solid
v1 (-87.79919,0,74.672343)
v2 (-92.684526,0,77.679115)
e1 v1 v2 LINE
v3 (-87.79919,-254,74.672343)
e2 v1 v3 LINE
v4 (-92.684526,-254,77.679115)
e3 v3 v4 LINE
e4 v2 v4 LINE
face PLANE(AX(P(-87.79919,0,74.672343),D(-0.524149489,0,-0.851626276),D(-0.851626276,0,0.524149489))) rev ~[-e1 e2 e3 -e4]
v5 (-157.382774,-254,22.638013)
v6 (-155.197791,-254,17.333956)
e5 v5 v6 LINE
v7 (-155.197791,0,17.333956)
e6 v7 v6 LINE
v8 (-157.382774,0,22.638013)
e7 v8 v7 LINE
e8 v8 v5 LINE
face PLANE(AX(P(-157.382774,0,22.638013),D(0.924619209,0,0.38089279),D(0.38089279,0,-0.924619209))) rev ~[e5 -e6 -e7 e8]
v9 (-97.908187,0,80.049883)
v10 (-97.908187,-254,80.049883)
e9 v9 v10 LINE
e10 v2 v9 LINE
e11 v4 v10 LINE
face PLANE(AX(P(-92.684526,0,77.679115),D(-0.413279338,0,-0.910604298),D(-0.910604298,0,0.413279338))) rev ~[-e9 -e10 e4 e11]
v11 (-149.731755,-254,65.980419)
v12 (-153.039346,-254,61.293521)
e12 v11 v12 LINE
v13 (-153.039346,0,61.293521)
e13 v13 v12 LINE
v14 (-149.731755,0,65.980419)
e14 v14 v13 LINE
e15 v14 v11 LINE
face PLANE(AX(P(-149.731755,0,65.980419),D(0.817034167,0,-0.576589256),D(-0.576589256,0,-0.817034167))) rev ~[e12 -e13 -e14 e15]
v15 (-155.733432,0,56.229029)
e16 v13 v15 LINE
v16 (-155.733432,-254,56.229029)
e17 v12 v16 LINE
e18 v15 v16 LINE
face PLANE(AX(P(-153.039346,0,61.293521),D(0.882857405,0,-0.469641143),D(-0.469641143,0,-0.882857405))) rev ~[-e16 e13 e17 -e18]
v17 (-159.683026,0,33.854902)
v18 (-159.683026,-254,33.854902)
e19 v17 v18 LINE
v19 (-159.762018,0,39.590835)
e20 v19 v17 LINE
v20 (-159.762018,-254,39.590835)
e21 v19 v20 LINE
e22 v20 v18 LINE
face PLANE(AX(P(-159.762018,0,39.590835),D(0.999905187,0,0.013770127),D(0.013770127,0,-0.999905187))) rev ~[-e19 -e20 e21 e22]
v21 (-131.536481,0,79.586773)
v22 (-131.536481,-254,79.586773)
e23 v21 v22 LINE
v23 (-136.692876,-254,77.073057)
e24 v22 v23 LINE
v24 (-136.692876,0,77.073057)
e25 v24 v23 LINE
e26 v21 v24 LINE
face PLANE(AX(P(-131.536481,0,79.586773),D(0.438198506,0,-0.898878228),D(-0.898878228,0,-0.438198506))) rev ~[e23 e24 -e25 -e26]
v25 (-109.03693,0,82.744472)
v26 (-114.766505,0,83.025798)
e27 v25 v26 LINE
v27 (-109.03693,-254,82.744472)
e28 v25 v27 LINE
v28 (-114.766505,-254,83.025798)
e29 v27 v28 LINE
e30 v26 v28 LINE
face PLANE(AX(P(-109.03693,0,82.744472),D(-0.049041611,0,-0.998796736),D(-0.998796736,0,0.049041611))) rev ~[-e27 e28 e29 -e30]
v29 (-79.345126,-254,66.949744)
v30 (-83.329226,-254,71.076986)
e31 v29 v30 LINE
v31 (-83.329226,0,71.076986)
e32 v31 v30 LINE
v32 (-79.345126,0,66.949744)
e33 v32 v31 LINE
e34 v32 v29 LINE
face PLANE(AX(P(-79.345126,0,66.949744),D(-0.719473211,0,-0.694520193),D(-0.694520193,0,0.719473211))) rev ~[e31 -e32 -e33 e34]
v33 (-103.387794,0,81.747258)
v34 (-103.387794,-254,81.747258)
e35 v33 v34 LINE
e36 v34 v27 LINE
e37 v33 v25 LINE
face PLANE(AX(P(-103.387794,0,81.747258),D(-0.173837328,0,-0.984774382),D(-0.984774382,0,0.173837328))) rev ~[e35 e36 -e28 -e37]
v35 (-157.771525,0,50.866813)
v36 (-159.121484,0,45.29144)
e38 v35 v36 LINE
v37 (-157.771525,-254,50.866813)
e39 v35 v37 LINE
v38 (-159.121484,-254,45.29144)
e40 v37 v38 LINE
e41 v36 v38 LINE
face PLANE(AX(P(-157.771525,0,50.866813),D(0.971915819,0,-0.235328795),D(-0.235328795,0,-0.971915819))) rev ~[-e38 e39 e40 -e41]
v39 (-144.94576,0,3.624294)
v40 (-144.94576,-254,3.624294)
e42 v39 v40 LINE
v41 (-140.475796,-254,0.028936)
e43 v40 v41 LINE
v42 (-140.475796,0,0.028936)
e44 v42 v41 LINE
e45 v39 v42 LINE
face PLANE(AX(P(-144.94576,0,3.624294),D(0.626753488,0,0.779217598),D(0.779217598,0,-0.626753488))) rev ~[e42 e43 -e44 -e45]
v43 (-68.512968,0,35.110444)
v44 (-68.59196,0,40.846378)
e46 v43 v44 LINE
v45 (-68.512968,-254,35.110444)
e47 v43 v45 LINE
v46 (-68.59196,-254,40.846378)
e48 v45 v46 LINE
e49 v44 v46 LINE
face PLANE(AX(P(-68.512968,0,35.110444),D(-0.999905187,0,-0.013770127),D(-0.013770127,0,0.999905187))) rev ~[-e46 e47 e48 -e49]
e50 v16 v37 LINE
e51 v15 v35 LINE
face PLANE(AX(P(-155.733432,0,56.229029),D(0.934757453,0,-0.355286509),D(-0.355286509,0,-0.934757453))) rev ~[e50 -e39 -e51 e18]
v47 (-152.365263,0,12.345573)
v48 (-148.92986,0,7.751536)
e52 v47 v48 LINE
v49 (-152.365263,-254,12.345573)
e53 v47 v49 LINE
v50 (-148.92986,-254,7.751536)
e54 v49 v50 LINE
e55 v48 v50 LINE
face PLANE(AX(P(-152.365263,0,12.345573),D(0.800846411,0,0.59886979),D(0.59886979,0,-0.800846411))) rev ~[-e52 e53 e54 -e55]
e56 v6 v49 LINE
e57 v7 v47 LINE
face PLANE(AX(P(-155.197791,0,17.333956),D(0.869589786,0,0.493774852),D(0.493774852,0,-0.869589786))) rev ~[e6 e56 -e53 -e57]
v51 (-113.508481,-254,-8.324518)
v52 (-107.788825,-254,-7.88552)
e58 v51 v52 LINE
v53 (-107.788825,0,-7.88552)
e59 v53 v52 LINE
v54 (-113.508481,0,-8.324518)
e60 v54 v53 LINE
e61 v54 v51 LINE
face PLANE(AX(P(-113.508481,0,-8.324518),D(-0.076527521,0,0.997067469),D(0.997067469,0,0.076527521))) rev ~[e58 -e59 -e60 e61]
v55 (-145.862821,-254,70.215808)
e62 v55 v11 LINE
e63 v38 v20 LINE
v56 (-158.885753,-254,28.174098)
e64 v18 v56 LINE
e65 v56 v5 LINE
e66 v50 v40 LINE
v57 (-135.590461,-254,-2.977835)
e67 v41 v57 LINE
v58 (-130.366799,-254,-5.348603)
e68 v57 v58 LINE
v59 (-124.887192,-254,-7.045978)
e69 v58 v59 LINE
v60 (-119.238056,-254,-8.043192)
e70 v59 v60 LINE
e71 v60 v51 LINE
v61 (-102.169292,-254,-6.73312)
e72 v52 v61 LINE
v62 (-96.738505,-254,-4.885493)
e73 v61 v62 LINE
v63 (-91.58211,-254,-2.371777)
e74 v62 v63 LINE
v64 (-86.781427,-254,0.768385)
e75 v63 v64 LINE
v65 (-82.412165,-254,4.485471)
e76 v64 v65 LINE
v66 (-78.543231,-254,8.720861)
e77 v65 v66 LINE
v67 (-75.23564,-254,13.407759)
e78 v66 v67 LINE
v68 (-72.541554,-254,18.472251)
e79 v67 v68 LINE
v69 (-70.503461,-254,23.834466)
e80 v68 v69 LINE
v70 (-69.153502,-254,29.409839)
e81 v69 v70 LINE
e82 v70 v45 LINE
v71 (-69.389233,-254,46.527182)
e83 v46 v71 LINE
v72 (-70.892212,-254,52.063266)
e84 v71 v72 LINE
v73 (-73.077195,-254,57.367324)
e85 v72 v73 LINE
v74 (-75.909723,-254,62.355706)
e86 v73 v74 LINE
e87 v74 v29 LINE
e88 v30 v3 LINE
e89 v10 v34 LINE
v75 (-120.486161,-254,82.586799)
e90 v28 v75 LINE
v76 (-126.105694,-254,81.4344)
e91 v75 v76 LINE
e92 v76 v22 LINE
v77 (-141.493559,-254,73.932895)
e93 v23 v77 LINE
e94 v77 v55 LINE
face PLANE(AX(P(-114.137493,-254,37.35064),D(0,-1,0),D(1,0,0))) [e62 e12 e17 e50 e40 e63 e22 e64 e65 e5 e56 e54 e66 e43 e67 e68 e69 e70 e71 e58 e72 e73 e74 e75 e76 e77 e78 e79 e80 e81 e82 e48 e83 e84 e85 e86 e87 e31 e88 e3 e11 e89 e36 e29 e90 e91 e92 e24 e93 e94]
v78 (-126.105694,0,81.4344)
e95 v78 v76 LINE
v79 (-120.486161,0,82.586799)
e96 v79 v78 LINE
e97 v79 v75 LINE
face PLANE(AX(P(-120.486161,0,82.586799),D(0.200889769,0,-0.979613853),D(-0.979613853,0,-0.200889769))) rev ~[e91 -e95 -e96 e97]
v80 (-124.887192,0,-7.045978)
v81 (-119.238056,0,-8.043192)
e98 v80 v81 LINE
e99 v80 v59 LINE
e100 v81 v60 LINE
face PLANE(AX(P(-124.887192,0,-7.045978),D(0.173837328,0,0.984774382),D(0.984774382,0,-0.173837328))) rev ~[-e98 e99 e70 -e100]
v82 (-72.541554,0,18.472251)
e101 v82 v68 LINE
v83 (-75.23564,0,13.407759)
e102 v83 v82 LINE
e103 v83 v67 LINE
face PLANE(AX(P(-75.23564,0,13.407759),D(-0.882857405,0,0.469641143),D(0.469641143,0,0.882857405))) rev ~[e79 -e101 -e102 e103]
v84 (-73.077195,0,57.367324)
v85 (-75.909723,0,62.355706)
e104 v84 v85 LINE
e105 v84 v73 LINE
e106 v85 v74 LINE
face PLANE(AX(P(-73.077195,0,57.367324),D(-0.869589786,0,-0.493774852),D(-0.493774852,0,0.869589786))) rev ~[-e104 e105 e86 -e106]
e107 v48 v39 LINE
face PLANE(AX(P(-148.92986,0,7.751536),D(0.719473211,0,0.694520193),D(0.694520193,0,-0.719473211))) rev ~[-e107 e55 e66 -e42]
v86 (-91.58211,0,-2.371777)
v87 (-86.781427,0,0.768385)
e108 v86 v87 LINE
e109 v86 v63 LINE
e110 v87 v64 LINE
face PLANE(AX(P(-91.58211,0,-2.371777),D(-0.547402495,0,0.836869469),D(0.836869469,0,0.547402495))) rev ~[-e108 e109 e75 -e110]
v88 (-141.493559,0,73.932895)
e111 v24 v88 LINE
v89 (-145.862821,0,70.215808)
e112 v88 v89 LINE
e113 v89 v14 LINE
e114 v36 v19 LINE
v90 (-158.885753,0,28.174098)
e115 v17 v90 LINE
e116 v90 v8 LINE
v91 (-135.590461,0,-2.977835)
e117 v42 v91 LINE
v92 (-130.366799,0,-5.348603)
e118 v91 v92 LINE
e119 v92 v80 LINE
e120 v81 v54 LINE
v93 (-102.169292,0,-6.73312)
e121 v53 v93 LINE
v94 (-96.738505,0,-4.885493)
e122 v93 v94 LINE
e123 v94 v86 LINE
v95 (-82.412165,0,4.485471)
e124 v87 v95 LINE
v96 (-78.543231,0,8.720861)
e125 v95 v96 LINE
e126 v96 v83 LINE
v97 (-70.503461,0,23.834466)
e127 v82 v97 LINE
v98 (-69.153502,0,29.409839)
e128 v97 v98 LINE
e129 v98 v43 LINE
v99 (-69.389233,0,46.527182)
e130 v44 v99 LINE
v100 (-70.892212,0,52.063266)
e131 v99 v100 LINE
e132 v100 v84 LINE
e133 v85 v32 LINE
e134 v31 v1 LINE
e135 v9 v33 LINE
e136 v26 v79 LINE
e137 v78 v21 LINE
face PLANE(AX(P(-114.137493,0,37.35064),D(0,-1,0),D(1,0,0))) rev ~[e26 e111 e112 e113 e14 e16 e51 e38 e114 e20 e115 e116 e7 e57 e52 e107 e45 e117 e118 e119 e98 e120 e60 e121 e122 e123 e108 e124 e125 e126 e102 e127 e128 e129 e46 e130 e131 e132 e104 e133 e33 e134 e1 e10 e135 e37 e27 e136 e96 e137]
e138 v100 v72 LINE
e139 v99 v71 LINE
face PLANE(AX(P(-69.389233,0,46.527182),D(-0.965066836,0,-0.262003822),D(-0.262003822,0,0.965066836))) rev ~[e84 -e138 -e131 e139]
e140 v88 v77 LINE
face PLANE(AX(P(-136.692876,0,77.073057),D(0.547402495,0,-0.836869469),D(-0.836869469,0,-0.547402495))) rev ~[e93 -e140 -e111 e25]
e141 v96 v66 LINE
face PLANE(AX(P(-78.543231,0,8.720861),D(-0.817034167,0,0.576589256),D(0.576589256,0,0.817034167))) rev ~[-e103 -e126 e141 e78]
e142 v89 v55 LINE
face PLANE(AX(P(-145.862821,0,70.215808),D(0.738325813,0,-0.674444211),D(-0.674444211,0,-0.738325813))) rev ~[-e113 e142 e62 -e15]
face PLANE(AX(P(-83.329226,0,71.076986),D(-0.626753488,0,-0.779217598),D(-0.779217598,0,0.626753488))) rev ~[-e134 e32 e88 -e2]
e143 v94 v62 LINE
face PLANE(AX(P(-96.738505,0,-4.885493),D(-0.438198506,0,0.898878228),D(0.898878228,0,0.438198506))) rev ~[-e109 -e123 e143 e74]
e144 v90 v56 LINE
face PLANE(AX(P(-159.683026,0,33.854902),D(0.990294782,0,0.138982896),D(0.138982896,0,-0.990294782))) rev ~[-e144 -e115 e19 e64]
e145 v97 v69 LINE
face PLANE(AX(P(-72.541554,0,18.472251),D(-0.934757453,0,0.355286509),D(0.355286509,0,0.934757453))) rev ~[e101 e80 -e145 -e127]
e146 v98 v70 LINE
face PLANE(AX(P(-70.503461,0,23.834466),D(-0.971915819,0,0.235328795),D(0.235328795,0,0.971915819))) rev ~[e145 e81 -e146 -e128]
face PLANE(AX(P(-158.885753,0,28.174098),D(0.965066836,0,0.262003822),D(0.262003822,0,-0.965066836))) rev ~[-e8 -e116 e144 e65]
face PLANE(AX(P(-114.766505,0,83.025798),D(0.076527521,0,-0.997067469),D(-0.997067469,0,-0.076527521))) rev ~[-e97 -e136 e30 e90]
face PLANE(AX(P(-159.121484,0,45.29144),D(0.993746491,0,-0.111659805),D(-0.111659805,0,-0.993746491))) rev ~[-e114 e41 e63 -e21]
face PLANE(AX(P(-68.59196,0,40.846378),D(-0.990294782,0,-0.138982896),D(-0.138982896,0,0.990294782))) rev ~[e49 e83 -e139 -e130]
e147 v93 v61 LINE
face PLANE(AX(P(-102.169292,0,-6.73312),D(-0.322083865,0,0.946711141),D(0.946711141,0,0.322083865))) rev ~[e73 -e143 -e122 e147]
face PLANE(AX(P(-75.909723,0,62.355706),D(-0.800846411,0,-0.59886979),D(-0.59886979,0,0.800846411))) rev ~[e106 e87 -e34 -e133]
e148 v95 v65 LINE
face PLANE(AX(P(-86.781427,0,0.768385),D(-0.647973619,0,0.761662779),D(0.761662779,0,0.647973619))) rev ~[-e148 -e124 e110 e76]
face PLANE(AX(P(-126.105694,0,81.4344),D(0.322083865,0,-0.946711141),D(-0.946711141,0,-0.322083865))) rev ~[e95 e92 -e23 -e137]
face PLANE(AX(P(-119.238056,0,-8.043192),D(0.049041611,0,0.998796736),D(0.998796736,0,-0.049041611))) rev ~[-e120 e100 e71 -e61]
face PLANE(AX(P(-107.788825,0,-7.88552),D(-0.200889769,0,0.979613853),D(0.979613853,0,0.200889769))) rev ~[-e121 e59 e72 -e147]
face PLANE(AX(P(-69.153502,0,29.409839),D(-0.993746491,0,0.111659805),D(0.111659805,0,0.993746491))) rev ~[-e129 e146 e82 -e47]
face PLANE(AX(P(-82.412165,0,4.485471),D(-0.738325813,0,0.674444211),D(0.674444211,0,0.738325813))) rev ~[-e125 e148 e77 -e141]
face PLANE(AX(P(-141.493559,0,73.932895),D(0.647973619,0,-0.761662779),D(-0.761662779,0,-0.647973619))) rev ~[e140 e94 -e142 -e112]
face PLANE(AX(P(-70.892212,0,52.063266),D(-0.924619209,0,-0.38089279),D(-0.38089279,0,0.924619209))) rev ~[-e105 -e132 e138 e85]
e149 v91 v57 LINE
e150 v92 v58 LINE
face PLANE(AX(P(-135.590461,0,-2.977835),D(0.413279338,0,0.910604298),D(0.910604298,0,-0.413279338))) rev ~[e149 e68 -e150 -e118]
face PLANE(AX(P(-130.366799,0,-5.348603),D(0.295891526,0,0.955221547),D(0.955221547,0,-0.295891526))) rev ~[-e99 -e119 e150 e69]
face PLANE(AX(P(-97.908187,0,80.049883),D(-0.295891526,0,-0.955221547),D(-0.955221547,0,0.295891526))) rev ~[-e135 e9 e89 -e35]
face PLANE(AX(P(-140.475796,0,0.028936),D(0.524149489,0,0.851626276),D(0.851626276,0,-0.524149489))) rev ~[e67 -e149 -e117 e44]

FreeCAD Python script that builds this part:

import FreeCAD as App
import Part
import Sketcher

V = App.Vector
Q = App.Units.Quantity

doc = App.newDocument("Part")
body = doc.addObject("PartDesign::Body", "Body")

sketch1 = body.newObject("Sketcher::SketchObject", "Sketch")
sketch1.AttachmentSupport = (doc.getObject("XZ_Plane"), [""])
sketch1.MapMode = "FlatFace"
sketch1.addGeometry([
    Part.LineSegment(V(-79, 67, 0), V(-83, 71, 0)),
    Part.LineSegment(V(-83, 71, 0), V(-88, 75, 0)),
    Part.LineSegment(V(-88, 75, 0), V(-93, 78, 0)),
    Part.LineSegment(V(-93, 78, 0), V(-98, 80, 0)),
    Part.LineSegment(V(-98, 80, 0), V(-103, 82, 0)),
    Part.LineSegment(V(-103, 82, 0), V(-109, 83, 0)),
    Part.LineSegment(V(-109, 83, 0), V(-115, 83, 0)),
    Part.LineSegment(V(-115, 83, 0), V(-120, 83, 0)),
    Part.LineSegment(V(-120, 83, 0), V(-126, 81, 0)),
    Part.LineSegment(V(-126, 81, 0), V(-132, 80, 0)),
    Part.LineSegment(V(-132, 80, 0), V(-137, 77, 0)),
    Part.LineSegment(V(-137, 77, 0), V(-141, 74, 0)),
    Part.LineSegment(V(-141, 74, 0), V(-146, 70, 0)),
    Part.LineSegment(V(-146, 70, 0), V(-150, 66, 0)),
    Part.LineSegment(V(-150, 66, 0), V(-153, 61, 0)),
    Part.LineSegment(V(-153, 61, 0), V(-156, 56, 0)),
    Part.LineSegment(V(-156, 56, 0), V(-158, 51, 0)),
    Part.LineSegment(V(-158, 51, 0), V(-159, 45, 0)),
    Part.LineSegment(V(-159, 45, 0), V(-160, 40, 0)),
    Part.LineSegment(V(-160, 40, 0), V(-160, 34, 0)),
    Part.LineSegment(V(-160, 34, 0), V(-159, 28, 0)),
    Part.LineSegment(V(-159, 28, 0), V(-157, 23, 0)),
    Part.LineSegment(V(-157, 23, 0), V(-155, 17, 0)),
    Part.LineSegment(V(-155, 17, 0), V(-152, 12, 0)),
    Part.LineSegment(V(-152, 12, 0), V(-149, 8, 0)),
    Part.LineSegment(V(-149, 8, 0), V(-145, 4, 0)),
    Part.LineSegment(V(-145, 4, 0), V(-140, 0, 0)),
    Part.LineSegment(V(-140, 0, 0), V(-136, -3, 0)),
    Part.LineSegment(V(-136, -3, 0), V(-130, -5, 0)),
    Part.LineSegment(V(-130, -5, 0), V(-125, -7, 0)),
    Part.LineSegment(V(-125, -7, 0), V(-119, -8, 0)),
    Part.LineSegment(V(-119, -8, 0), V(-114, -8, 0)),
    Part.LineSegment(V(-114, -8, 0), V(-108, -8, 0)),
    Part.LineSegment(V(-108, -8, 0), V(-102, -7, 0)),
    Part.LineSegment(V(-102, -7, 0), V(-97, -5, 0)),
    Part.LineSegment(V(-97, -5, 0), V(-92, -2, 0)),
    Part.LineSegment(V(-92, -2, 0), V(-87, 1, 0)),
    Part.LineSegment(V(-87, 1, 0), V(-82, 4, 0)),
    Part.LineSegment(V(-82, 4, 0), V(-79, 9, 0)),
    Part.LineSegment(V(-79, 9, 0), V(-75, 13, 0)),
    Part.LineSegment(V(-75, 13, 0), V(-73, 18, 0)),
    Part.LineSegment(V(-73, 18, 0), V(-71, 24, 0)),
    Part.LineSegment(V(-71, 24, 0), V(-69, 29, 0)),
    Part.LineSegment(V(-69, 29, 0), V(-69, 35, 0)),
    Part.LineSegment(V(-69, 35, 0), V(-69, 41, 0)),
    Part.LineSegment(V(-69, 41, 0), V(-69, 47, 0)),
    Part.LineSegment(V(-69, 47, 0), V(-71, 52, 0)),
    Part.LineSegment(V(-71, 52, 0), V(-73, 57, 0)),
    Part.LineSegment(V(-73, 57, 0), V(-76, 62, 0)),
    Part.LineSegment(V(-76, 62, 0), V(-79, 67, 0)),
], False)
sketch1.addConstraint([
    Sketcher.Constraint("Coincident", 0, 2, 1, 1),
    Sketcher.Constraint("Coincident", 1, 2, 2, 1),
    Sketcher.Constraint("Coincident", 2, 2, 3, 1),
    Sketcher.Constraint("Coincident", 3, 2, 4, 1),
    Sketcher.Constraint("Coincident", 4, 2, 5, 1),
    Sketcher.Constraint("Coincident", 5, 2, 6, 1),
    Sketcher.Constraint("Coincident", 6, 2, 7, 1),
    Sketcher.Constraint("Coincident", 7, 2, 8, 1),
    Sketcher.Constraint("Coincident", 8, 2, 9, 1),
    Sketcher.Constraint("Coincident", 9, 2, 10, 1),
    Sketcher.Constraint("Coincident", 10, 2, 11, 1),
    Sketcher.Constraint("Coincident", 11, 2, 12, 1),
    Sketcher.Constraint("Coincident", 12, 2, 13, 1),
    Sketcher.Constraint("Coincident", 13, 2, 14, 1),
    Sketcher.Constraint("Coincident", 14, 2, 15, 1),
    Sketcher.Constraint("Coincident", 15, 2, 16, 1),
    Sketcher.Constraint("Coincident", 16, 2, 17, 1),
    Sketcher.Constraint("Coincident", 17, 2, 18, 1),
    Sketcher.Constraint("Coincident", 18, 2, 19, 1),
    Sketcher.Constraint("Coincident", 19, 2, 20, 1),
    Sketcher.Constraint("Coincident", 20, 2, 21, 1),
    Sketcher.Constraint("Coincident", 21, 2, 22, 1),
    Sketcher.Constraint("Coincident", 22, 2, 23, 1),
    Sketcher.Constraint("Coincident", 23, 2, 24, 1),
    Sketcher.Constraint("Coincident", 24, 2, 25, 1),
    Sketcher.Constraint("Coincident", 25, 2, 26, 1),
    Sketcher.Constraint("Coincident", 26, 2, 27, 1),
    Sketcher.Constraint("Coincident", 27, 2, 28, 1),
    Sketcher.Constraint("Coincident", 28, 2, 29, 1),
    Sketcher.Constraint("Coincident", 29, 2, 30, 1),
    Sketcher.Constraint("Coincident", 30, 2, 31, 1),
    Sketcher.Constraint("Coincident", 31, 2, 32, 1),
    Sketcher.Constraint("Coincident", 32, 2, 33, 1),
    Sketcher.Constraint("Coincident", 33, 2, 34, 1),
    Sketcher.Constraint("Coincident", 34, 2, 35, 1),
    Sketcher.Constraint("Coincident", 35, 2, 36, 1),
    Sketcher.Constraint("Coincident", 36, 2, 37, 1),
    Sketcher.Constraint("Coincident", 37, 2, 38, 1),
    Sketcher.Constraint("Coincident", 38, 2, 39, 1),
    Sketcher.Constraint("Coincident", 39, 2, 40, 1),
    Sketcher.Constraint("Coincident", 40, 2, 41, 1),
    Sketcher.Constraint("Coincident", 41, 2, 42, 1),
    Sketcher.Constraint("Coincident", 42, 2, 43, 1),
    Sketcher.Constraint("Coincident", 43, 2, 44, 1),
    Sketcher.Constraint("Coincident", 44, 2, 45, 1),
    Sketcher.Constraint("Coincident", 45, 2, 46, 1),
    Sketcher.Constraint("Coincident", 46, 2, 47, 1),
    Sketcher.Constraint("Coincident", 47, 2, 48, 1),
    Sketcher.Constraint("Coincident", 48, 2, 49, 1),
    Sketcher.Constraint("Coincident", 49, 2, 0, 1),
    Sketcher.Constraint("Parallel", 0, 25),
    Sketcher.Constraint("Parallel", 1, 26),
    Sketcher.Constraint("Parallel", 2, 27),
    Sketcher.Constraint("Parallel", 3, 28),
    Sketcher.Constraint("Parallel", 4, 29),
    Sketcher.Constraint("Parallel", 5, 30),
    Sketcher.Constraint("Parallel", 6, 31),
    Sketcher.Constraint("Parallel", 7, 32),
    Sketcher.Constraint("Parallel", 8, 33),
    Sketcher.Constraint("Parallel", 9, 34),
    Sketcher.Constraint("Parallel", 10, 35),
    Sketcher.Constraint("Parallel", 11, 36),
    Sketcher.Constraint("Parallel", 12, 37),
    Sketcher.Constraint("Parallel", 13, 38),
    Sketcher.Constraint("Parallel", 14, 39),
    Sketcher.Constraint("Parallel", 15, 40),
    Sketcher.Constraint("Parallel", 16, 41),
    Sketcher.Constraint("Parallel", 17, 42),
    Sketcher.Constraint("Parallel", 18, 43),
    Sketcher.Constraint("Parallel", 19, 44),
    Sketcher.Constraint("Parallel", 20, 45),
    Sketcher.Constraint("Parallel", 21, 46),
    Sketcher.Constraint("Parallel", 22, 47),
    Sketcher.Constraint("Parallel", 23, 48),
    Sketcher.Constraint("Parallel", 24, 49),
    Sketcher.Constraint("Equal", 0, 1),
    Sketcher.Constraint("Equal", 1, 2),
    Sketcher.Constraint("Equal", 2, 3),
    Sketcher.Constraint("Equal", 3, 4),
    Sketcher.Constraint("Equal", 4, 5),
    Sketcher.Constraint("Equal", 5, 6),
    Sketcher.Constraint("Equal", 6, 7),
    Sketcher.Constraint("Equal", 7, 8),
    Sketcher.Constraint("Equal", 8, 9),
    Sketcher.Constraint("Equal", 9, 10),
    Sketcher.Constraint("Equal", 10, 11),
    Sketcher.Constraint("Equal", 11, 12),
    Sketcher.Constraint("Equal", 12, 13),
    Sketcher.Constraint("Equal", 13, 14),
    Sketcher.Constraint("Equal", 14, 15),
    Sketcher.Constraint("Equal", 15, 16),
    Sketcher.Constraint("Equal", 16, 17),
    Sketcher.Constraint("Equal", 17, 18),
    Sketcher.Constraint("Equal", 18, 19),
    Sketcher.Constraint("Equal", 19, 20),
    Sketcher.Constraint("Equal", 20, 21),
    Sketcher.Constraint("Equal", 21, 22),
    Sketcher.Constraint("Equal", 22, 23),
    Sketcher.Constraint("Equal", 23, 24),
    Sketcher.Constraint("Equal", 24, 25),
    Sketcher.Constraint("Equal", 25, 26),
    Sketcher.Constraint("Equal", 26, 27),
    Sketcher.Constraint("Equal", 27, 28),
    Sketcher.Constraint("Equal", 28, 29),
    Sketcher.Constraint("Equal", 29, 30),
    Sketcher.Constraint("Equal", 30, 31),
    Sketcher.Constraint("Equal", 31, 32),
    Sketcher.Constraint("Equal", 32, 33),
    Sketcher.Constraint("Equal", 33, 34),
    Sketcher.Constraint("Equal", 34, 35),
    Sketcher.Constraint("Equal", 35, 36),
    Sketcher.Constraint("Equal", 36, 37),
    Sketcher.Constraint("Equal", 37, 38),
    Sketcher.Constraint("Equal", 38, 39),
    Sketcher.Constraint("Equal", 39, 40),
    Sketcher.Constraint("Equal", 40, 41),
    Sketcher.Constraint("Equal", 41, 42),
    Sketcher.Constraint("Equal", 42, 43),
    Sketcher.Constraint("Equal", 43, 44),
    Sketcher.Constraint("Equal", 44, 45),
    Sketcher.Constraint("Equal", 45, 46),
    Sketcher.Constraint("Equal", 46, 47),
    Sketcher.Constraint("DistanceY", 26, 2, 22, 2, Q("0.6813 in")),
    Sketcher.Constraint("DistanceY", -1, 1, 7, 2, Q("82.586799 mm")),
    Sketcher.Constraint("DistanceY", -1, 1, 8, 2, Q("81.4344 mm")),
    Sketcher.Constraint("DistanceY", -1, 1, 19, 2, Q("33.854902 mm")),
    Sketcher.Constraint("DistanceX", 28, 2, -1, 1, Q("130.366799 mm")),
    Sketcher.Constraint("DistanceX", 2, 2, 0, 2, Q("9.3553 mm")),
    Sketcher.Constraint("DistanceY", 7, 2, 6, 2, Q("0.438998 mm")),
    Sketcher.Constraint("DistanceX", 8, 2, 4, 2, Q("22.7179 mm")),
    Sketcher.Constraint("DistanceY", 9, 2, 5, 2, Q("3.157699 mm")),
    Sketcher.Constraint("DistanceX", 11, 2, 7, 2, Q("21.007398 mm")),
    Sketcher.Constraint("DistanceY", 14, 2, 13, 2, Q("4.686898 mm")),
    Sketcher.Constraint("DistanceX", 19, 2, 16, 2, Q("1.9115 mm")),
    Sketcher.Constraint("DistanceY", 21, 2, 16, 2, Q("28.2288 mm")),
    Sketcher.Constraint("DistanceX", 24, 2, 25, 2, Q("3.9841 mm")),
    Sketcher.Constraint("DistanceY", 26, 2, 24, 2, Q("7.722599 mm")),
    Sketcher.Constraint("DistanceX", 1, 2, -1, 1, Q("87.79919 mm")),
    Sketcher.Constraint("DistanceX", 5, 2, -1, 1, Q("109.03693 mm")),
    Sketcher.Constraint("DistanceY", -1, 1, 5, 2, Q("82.744472 mm")),
    Sketcher.Constraint("DistanceX", 7, 2, -1, 1, Q("120.486161 mm")),
    Sketcher.Constraint("DistanceX", 12, 2, -1, 1, Q("145.862821 mm")),
    Sketcher.Constraint("DistanceY", -1, 1, 12, 2, Q("70.215808 mm")),
    Sketcher.Constraint("DistanceY", -1, 1, 13, 2, Q("65.980419 mm")),
    Sketcher.Constraint("DistanceY", -1, 1, 15, 2, Q("56.229029 mm")),
    Sketcher.Constraint("DistanceY", -1, 1, 17, 2, Q("45.29144 mm")),
    Sketcher.Constraint("DistanceX", 22, 2, -1, 1, Q("155.197791 mm")),
    Sketcher.Constraint("DistanceX", 24, 2, -1, 1, Q("148.92986 mm")),
    Sketcher.Constraint("DistanceY", 29, 2, -1, 1, Q("7.045978 mm")),
    Sketcher.Constraint("DistanceX", 41, 2, -1, 1, Q("70.503461 mm")),
])
pad1 = body.newObject("PartDesign::Pad", "Pad")
pad1.Profile = sketch1
pad1.Length = Q("10 in")

doc.recompute()
